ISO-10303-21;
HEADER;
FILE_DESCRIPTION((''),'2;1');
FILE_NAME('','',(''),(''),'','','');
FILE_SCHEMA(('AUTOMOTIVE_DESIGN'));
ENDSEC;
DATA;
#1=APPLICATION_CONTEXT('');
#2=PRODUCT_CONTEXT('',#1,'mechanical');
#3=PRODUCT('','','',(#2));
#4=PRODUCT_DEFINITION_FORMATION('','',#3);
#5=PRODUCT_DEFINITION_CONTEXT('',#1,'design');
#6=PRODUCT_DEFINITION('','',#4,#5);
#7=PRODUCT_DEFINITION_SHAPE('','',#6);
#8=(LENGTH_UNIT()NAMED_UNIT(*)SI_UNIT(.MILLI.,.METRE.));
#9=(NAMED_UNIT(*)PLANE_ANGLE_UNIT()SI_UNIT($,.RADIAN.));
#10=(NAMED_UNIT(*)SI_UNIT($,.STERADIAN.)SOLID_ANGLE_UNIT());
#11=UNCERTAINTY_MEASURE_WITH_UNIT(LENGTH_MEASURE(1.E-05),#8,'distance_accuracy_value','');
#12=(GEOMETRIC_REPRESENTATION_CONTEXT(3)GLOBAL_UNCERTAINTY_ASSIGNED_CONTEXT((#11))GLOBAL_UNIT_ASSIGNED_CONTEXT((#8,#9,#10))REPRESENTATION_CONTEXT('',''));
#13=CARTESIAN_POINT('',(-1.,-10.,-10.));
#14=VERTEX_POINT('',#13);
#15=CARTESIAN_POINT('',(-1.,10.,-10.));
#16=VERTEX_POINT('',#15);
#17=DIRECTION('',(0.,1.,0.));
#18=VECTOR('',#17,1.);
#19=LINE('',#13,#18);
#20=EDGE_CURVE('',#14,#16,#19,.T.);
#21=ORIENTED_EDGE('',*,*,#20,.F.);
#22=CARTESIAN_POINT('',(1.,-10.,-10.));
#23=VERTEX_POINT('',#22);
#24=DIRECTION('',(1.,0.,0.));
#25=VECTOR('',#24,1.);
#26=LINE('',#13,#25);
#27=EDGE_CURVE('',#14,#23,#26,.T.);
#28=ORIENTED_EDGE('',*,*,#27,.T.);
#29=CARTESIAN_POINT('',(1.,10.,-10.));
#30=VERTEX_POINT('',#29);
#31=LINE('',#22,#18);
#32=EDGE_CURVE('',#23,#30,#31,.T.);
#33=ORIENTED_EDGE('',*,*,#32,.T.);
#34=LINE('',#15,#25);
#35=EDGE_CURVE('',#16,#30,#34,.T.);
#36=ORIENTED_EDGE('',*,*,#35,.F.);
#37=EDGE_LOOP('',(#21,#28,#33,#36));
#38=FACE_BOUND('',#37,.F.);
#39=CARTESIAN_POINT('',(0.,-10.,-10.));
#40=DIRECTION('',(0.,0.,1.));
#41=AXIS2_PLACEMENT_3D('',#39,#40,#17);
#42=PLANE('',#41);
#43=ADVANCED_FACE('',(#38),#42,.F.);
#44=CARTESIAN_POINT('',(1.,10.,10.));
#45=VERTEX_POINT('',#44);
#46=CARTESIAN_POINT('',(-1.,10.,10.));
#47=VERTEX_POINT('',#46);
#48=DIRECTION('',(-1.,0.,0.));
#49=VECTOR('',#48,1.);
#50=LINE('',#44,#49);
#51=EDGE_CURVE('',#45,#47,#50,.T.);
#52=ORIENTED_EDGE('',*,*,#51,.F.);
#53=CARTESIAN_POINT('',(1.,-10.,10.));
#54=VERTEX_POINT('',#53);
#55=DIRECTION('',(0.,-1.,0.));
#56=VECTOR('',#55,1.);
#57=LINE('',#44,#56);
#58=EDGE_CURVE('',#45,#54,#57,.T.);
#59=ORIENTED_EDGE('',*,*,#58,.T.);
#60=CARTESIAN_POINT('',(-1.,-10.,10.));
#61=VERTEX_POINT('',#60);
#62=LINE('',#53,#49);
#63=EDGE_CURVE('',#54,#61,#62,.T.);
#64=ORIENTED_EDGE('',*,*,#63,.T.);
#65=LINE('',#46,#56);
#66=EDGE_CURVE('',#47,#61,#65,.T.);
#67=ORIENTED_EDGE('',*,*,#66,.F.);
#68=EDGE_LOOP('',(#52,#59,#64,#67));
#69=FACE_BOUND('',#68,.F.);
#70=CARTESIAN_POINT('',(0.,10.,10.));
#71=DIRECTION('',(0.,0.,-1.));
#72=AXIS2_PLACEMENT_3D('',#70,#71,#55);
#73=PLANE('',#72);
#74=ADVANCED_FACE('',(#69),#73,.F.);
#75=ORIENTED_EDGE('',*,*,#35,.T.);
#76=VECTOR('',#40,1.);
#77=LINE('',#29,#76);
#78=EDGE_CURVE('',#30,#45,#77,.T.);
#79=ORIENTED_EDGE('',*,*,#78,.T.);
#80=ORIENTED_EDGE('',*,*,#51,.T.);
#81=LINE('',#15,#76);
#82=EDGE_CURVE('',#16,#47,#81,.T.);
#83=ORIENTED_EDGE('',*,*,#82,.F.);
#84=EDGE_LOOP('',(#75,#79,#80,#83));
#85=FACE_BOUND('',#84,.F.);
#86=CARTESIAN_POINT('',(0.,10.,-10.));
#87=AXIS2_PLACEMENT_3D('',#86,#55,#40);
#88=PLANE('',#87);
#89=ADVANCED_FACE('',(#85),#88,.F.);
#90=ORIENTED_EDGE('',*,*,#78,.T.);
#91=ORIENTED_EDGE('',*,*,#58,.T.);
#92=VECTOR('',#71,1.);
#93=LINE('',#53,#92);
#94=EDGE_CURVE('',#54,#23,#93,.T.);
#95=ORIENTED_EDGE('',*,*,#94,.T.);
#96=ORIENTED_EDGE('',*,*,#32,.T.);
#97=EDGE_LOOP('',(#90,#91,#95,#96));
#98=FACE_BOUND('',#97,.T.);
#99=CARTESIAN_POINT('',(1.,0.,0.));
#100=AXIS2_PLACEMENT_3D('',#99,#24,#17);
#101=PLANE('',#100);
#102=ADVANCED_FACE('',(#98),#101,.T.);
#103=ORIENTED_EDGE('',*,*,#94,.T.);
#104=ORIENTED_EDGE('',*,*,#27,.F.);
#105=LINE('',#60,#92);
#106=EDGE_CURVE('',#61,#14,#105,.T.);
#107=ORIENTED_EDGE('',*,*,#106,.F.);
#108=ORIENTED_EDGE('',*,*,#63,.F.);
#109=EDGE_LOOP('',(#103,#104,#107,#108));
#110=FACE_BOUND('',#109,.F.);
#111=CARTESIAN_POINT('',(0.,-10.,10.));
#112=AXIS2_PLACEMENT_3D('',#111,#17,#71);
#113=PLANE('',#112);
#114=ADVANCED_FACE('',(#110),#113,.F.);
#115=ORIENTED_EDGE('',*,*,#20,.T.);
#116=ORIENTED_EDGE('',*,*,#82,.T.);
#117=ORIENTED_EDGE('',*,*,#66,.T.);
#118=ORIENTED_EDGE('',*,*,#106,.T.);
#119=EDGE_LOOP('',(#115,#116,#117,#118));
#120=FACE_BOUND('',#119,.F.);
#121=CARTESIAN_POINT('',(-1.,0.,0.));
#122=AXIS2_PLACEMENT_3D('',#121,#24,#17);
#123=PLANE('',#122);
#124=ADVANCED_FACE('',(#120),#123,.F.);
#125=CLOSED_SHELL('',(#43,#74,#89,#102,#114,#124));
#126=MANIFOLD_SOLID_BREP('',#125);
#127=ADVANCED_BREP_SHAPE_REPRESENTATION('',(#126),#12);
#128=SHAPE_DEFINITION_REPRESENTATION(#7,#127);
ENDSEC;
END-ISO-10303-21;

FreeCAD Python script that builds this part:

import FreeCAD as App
import Part
import Sketcher


def add_polygon(sketch, points):
    """Adds a closed chain of lines whose ends are joined by coincident constraints."""
    first, n = sketch.GeometryCount, len(points)
    for a, b in zip(points, points[1:] + points[:1]):
        sketch.addGeometry(Part.LineSegment(App.Vector(*a, 0), App.Vector(*b, 0)), False)
    for i in range(n):
        sketch.addConstraint(Sketcher.Constraint("Coincident", first + i, 2, first + (i + 1) % n, 1))

doc = App.newDocument("Part")
body = doc.addObject("PartDesign::Body", "Body")

# Sketch on YZ plane
sketch1 = body.newObject("Sketcher::SketchObject", "Sketch")
sketch1.AttachmentSupport = (doc.getObject("YZ_Plane"), [""])
sketch1.MapMode = "FlatFace"
add_polygon(sketch1, [(-10, 10), (-10, -10), (10, -10), (10, 10)])  # lines 0-3
sketch1.addConstraint(Sketcher.Constraint("Vertical", 0))
sketch1.addConstraint(Sketcher.Constraint("Horizontal", 1))
sketch1.addConstraint(Sketcher.Constraint("Vertical", 2))
sketch1.addConstraint(Sketcher.Constraint("Horizontal", 3))
sketch1.addConstraint(Sketcher.Constraint("Symmetric", 0, 2, 2, 2, -1, 1))
sketch1.addConstraint(Sketcher.Constraint("Equal", 3, 0))
sketch1.addConstraint(Sketcher.Constraint("DistanceX", 1, 1, 1, 2, 20.0))
pad1 = body.newObject("PartDesign::Pad", "Pad")
pad1.Profile = sketch1
pad1.Length = 2
pad1.Midplane = True

doc.recompute()
